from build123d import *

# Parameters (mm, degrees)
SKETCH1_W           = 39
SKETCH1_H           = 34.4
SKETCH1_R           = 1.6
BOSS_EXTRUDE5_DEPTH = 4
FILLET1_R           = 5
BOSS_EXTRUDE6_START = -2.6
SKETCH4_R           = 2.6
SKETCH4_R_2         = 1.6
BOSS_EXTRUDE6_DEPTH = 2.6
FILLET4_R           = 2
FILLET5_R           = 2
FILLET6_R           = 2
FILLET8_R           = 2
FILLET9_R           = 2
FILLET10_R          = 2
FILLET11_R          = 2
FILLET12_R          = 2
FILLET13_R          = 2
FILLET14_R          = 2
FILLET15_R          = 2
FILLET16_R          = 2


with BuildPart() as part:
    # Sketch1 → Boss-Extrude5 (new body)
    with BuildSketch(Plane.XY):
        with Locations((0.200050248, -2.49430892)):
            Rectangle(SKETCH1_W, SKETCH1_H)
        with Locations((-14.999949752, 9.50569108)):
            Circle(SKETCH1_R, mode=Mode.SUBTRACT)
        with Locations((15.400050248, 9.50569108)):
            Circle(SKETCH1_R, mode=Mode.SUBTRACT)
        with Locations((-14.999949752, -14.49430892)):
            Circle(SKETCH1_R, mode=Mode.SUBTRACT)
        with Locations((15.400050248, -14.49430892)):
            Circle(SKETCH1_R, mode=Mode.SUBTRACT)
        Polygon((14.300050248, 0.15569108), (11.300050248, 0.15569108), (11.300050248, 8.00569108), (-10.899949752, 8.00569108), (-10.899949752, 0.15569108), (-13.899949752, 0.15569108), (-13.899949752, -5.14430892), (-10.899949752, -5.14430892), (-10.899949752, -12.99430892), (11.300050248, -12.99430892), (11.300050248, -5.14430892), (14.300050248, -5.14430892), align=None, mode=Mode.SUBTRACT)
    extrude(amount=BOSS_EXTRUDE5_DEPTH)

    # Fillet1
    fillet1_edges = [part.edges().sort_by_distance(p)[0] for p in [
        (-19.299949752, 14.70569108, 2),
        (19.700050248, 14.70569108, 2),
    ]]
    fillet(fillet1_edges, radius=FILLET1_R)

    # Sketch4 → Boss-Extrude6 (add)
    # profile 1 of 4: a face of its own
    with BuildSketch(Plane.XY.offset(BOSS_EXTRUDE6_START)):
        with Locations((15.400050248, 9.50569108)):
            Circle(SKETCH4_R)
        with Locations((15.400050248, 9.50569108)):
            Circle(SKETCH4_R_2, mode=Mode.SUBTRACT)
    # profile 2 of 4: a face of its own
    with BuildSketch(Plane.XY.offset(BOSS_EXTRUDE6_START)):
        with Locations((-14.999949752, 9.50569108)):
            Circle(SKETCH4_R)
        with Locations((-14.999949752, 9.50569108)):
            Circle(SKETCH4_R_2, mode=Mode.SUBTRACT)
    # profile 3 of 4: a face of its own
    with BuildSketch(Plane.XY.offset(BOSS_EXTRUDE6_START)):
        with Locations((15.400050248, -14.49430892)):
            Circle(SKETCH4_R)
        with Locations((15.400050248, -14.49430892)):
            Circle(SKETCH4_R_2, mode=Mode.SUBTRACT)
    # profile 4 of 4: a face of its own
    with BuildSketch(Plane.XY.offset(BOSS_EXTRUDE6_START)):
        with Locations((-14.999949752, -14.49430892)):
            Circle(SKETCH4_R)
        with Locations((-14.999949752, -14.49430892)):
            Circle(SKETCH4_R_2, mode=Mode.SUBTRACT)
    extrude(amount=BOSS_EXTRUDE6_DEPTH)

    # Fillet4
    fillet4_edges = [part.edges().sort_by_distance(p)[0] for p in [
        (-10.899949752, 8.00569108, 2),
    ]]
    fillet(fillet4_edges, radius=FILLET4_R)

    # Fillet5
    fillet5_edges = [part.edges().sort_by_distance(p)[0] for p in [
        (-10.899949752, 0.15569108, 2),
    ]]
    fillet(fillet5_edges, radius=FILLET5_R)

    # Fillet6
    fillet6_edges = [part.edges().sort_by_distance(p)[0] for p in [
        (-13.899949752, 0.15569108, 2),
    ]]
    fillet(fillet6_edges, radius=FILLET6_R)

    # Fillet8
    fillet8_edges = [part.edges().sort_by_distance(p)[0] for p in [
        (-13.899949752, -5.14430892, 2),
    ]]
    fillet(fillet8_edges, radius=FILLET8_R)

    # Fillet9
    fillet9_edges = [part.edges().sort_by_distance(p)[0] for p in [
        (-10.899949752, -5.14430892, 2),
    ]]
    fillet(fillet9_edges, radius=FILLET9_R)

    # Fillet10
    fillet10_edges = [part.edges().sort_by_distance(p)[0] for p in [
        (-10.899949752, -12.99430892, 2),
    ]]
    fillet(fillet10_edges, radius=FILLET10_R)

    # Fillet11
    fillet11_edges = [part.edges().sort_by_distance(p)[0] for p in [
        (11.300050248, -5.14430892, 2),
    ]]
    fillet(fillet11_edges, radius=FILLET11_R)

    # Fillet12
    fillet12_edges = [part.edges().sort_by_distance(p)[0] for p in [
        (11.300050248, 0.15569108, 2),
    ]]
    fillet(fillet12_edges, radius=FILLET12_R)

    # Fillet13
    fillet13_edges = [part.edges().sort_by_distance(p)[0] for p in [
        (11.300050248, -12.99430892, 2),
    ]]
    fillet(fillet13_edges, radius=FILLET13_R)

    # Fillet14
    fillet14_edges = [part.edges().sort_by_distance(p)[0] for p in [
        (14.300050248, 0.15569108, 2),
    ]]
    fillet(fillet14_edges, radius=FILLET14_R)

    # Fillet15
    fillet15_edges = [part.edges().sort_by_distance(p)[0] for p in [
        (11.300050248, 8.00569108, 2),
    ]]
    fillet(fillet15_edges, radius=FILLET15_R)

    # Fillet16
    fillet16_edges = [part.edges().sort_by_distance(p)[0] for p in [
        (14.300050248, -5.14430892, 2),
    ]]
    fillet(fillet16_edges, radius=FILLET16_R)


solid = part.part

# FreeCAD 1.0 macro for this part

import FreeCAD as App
import Part
import Sketcher
from FreeCAD import Vector
Q = App.Units.Quantity


def edges_at(feature, points):
    """Names of the edges that pass closest to the given points."""
    edges = feature.Shape.Edges
    near = lambda p: min(range(len(edges)), key=lambda i: edges[i].distToShape(Part.Vertex(*p))[0])
    return sorted({f"Edge{near(p) + 1}" for p in points})


def add_polygon(sketch, points):
    """Adds a closed chain of lines whose ends are joined by coincident constraints."""
    first, n = sketch.GeometryCount, len(points)
    for a, b in zip(points, points[1:] + points[:1]):
        sketch.addGeometry(Part.LineSegment(App.Vector(*a, 0), App.Vector(*b, 0)), False)
    for i in range(n):
        sketch.addConstraint(Sketcher.Constraint("Coincident", first + i, 2, first + (i + 1) % n, 1))

doc = App.newDocument("Part")
params = doc.addObject("Spreadsheet::Sheet", "Params")
for row, (alias, value) in enumerate([
    ("sketch1_diameter", "3.2 mm"),
    ("sketch1_width", "39 mm"),
    ("sketch1_width2", "3 mm"),
    ("sketch1_width3", "22.2 mm"),
    ("sketch1_height", "34.4 mm"),
    ("pad1_length", "4 mm"),
    ("fillet_radius", "5 mm"),
    ("sketch2_diameter", "5.2 mm"),
    ("sketch2_diameter2", "3.2 mm"),
    ("pad2_length", "2.6 mm"),
    ("fillet2_radius", "2 mm"),
    ("fillet3_radius", "2 mm"),
    ("fillet4_radius", "2 mm"),
    ("fillet5_radius", "2 mm"),
    ("fillet6_radius", "2 mm"),
    ("fillet7_radius", "2 mm"),
    ("fillet8_radius", "2 mm"),
    ("fillet9_radius", "2 mm"),
    ("fillet10_radius", "2 mm"),
    ("fillet11_radius", "2 mm"),
    ("fillet12_radius", "2 mm"),
    ("fillet13_radius", "2 mm"),
], start=1):
    params.set(f"A{row}", alias)
    params.set(f"B{row}", "=" + value)
    params.setAlias(f"B{row}", alias)

body = doc.addObject("PartDesign::Body", "Body")

# Sketch on XY plane
sketch1 = body.newObject("Sketcher::SketchObject", "Sketch")
sketch1.AttachmentSupport = (doc.getObject("XY_Plane"), [""])
sketch1.MapMode = "FlatFace"
add_polygon(sketch1, [(-19.3, 14.7), (-19.3, -19.7), (19.7, -19.7), (19.7, 14.7)])  # lines 0-3
sketch1.addGeometry(Part.Circle(Vector(-15, -14.5, 0), Vector(0, 0, 1), 1.6), False)  # 4
sketch1.addGeometry(Part.Circle(Vector(15.4, -14.5, 0), Vector(0, 0, 1), 1.6), False)  # 5
sketch1.addGeometry(Part.Circle(Vector(-15, 9.5, 0), Vector(0, 0, 1), 1.6), False)  # 6
add_polygon(sketch1, [(11.3, 0.2), (14.3, 0.2), (14.3, -5.1), (11.3, -5.1), (11.3, -13), (-10.9, -13), (-10.9, -5.1), (-13.9, -5.1), (-13.9, 0.2), (-10.9, 0.2), (-10.9, 8), (11.3, 8)])  # lines 7-18
sketch1.addGeometry(Part.Circle(Vector(15.4, 9.5, 0), Vector(0, 0, 1), 1.6), False)  # 19
sketch1.addConstraint([
    Sketcher.Constraint("Vertical", 0),
    Sketcher.Constraint("Horizontal", 1),
    Sketcher.Constraint("Vertical", 2),
    Sketcher.Constraint("Horizontal", 3),
    Sketcher.Constraint("Horizontal", 7),
    Sketcher.Constraint("Vertical", 8),
    Sketcher.Constraint("Horizontal", 9),
    Sketcher.Constraint("Vertical", 10),
    Sketcher.Constraint("Horizontal", 11),
    Sketcher.Constraint("Vertical", 12),
    Sketcher.Constraint("Horizontal", 13),
    Sketcher.Constraint("Vertical", 14),
    Sketcher.Constraint("Horizontal", 15),
    Sketcher.Constraint("Vertical", 16),
    Sketcher.Constraint("Horizontal", 17),
    Sketcher.Constraint("Vertical", 18),
    Sketcher.Constraint("Equal", 4, 5),
    Sketcher.Constraint("Equal", 5, 6),
    Sketcher.Constraint("Equal", 6, 19),
    Sketcher.Constraint("Horizontal", 4, 3, 5, 3),
    Sketcher.Constraint("Horizontal", 6, 3, 19, 3),
    Sketcher.Constraint("Horizontal", 9, 2, 12, 2),
    Sketcher.Constraint("Horizontal", 7, 2, 14, 2),
    Sketcher.Constraint("Vertical", 4, 3, 6, 3),
    Sketcher.Constraint("Vertical", 5, 3, 19, 3),
    Sketcher.Constraint("Vertical", 12, 2, 15, 2),
    Sketcher.Constraint("Vertical", 10, 2, 17, 2),
    Sketcher.Constraint("Equal", 9, 13),
    Sketcher.Constraint("Equal", 12, 16),
    Sketcher.Constraint("Diameter", 4, Q("3.2 mm")),
    Sketcher.Constraint("DistanceX", 1, 1, 1, 2, Q("39 mm")),
    Sketcher.Constraint("DistanceX", 7, 1, 7, 2, Q("3 mm")),
    Sketcher.Constraint("DistanceX", 11, 2, 11, 1, Q("22.2 mm")),
    Sketcher.Constraint("DistanceY", 0, 2, 0, 1, Q("34.4 mm")),
    Sketcher.Constraint("DistanceY", 8, 2, 8, 1, Q("5.3 mm")),
    Sketcher.Constraint("DistanceY", 4, 3, 6, 3, Q("24 mm")),
    Sketcher.Constraint("DistanceY", 10, 2, 10, 1, Q("7.85 mm")),
    Sketcher.Constraint("DistanceX", 4, 3, 5, 3, Q("30.4 mm")),
    Sketcher.Constraint("DistanceX", 0, 2, 4, 3, Q("4.3 mm")),
    Sketcher.Constraint("DistanceY", 0, 2, 4, 3, Q("5.2 mm")),
    Sketcher.Constraint("DistanceX", 7, 2, 19, 3, Q("1.1 mm")),
    Sketcher.Constraint("DistanceY", 5, 3, 10, 2, Q("1.5 mm")),
    Sketcher.Constraint("DistanceX", 4, 3, -1, 1, Q("14.99995 mm")),
    Sketcher.Constraint("DistanceY", 4, 3, -1, 1, Q("14.494309 mm")),
])
sketch1.setExpression("Constraints[45]", "Params.sketch1_diameter")
sketch1.setExpression("Constraints[46]", "Params.sketch1_width")
sketch1.setExpression("Constraints[47]", "Params.sketch1_width2")
sketch1.setExpression("Constraints[48]", "Params.sketch1_width3")
sketch1.setExpression("Constraints[49]", "Params.sketch1_height")
pad1 = body.newObject("PartDesign::Pad", "Pad")
pad1.Profile = sketch1
pad1.setExpression("Length", "Params.pad1_length")
doc.recompute()

fillet = body.newObject("PartDesign::Fillet", "Fillet")
fillet.Base = (pad1, edges_at(pad1, [(-19.3, 14.706, 2), (19.7, 14.706, 2)]))
fillet.setExpression("Radius", "Params.fillet_radius")

# Sketch on XY plane
sketch2 = body.newObject("Sketcher::SketchObject", "Sketch001")
sketch2.AttachmentSupport = (doc.getObject("XY_Plane"), [""])
sketch2.MapMode = "FlatFace"
sketch2.AttachmentOffset = App.Placement(Vector(0, 0, -2.6), App.Rotation())
sketch2.addGeometry([
    Part.Circle(Vector(15.4, 9.5, 0), Vector(0, 0, 1), 2.6),  # 0
    Part.Circle(Vector(15.4, 9.5, 0), Vector(0, 0, 1), 1.6),  # 1
    Part.Circle(Vector(-15, 9.5, 0), Vector(0, 0, 1), 2.6),  # 2
    Part.Circle(Vector(-15, 9.5, 0), Vector(0, 0, 1), 1.6),  # 3
    Part.Circle(Vector(15.4, -14.5, 0), Vector(0, 0, 1), 2.6),  # 4
    Part.Circle(Vector(15.4, -14.5, 0), Vector(0, 0, 1), 1.6),  # 5
    Part.Circle(Vector(-15, -14.5, 0), Vector(0, 0, 1), 2.6),  # 6
    Part.Circle(Vector(-15, -14.5, 0), Vector(0, 0, 1), 1.6),  # 7
], False)
sketch2.addConstraint([
    Sketcher.Constraint("Coincident", 1, 3, 0, 3),
    Sketcher.Constraint("Coincident", 3, 3, 2, 3),
    Sketcher.Constraint("Coincident", 5, 3, 4, 3),
    Sketcher.Constraint("Coincident", 7, 3, 6, 3),
    Sketcher.Constraint("Equal", 0, 2),
    Sketcher.Constraint("Equal", 1, 3),
    Sketcher.Constraint("Equal", 2, 4),
    Sketcher.Constraint("Equal", 3, 5),
    Sketcher.Constraint("Equal", 4, 6),
    Sketcher.Constraint("Equal", 5, 7),
    Sketcher.Constraint("Horizontal", 1, 3, 2, 3),
    Sketcher.Constraint("Horizontal", 5, 3, 6, 3),
    Sketcher.Constraint("Vertical", 1, 3, 4, 3),
    Sketcher.Constraint("Vertical", 3, 3, 6, 3),
    Sketcher.Constraint("Diameter", 0, Q("5.2 mm")),
    Sketcher.Constraint("Diameter", 1, Q("3.2 mm")),
    Sketcher.Constraint("DistanceY", 4, 3, 0, 3, Q("24 mm")),
    Sketcher.Constraint("DistanceX", 2, 3, 0, 3, Q("30.4 mm")),
    Sketcher.Constraint("DistanceX", -1, 1, 0, 3, Q("15.40005 mm")),
    Sketcher.Constraint("DistanceY", -1, 1, 0, 3, Q("9.505691 mm")),
])
sketch2.setExpression("Constraints[14]", "Params.sketch2_diameter")
sketch2.setExpression("Constraints[15]", "Params.sketch2_diameter2")
pad2 = body.newObject("PartDesign::Pad", "Pad001")
pad2.Profile = sketch2
pad2.setExpression("Length", "Params.pad2_length")
doc.recompute()

fillet2 = body.newObject("PartDesign::Fillet", "Fillet001")
fillet2.Base = (pad2, edges_at(pad2, [(-10.9, 8.006, 2)]))
fillet2.setExpression("Radius", "Params.fillet2_radius")
doc.recompute()

fillet3 = body.newObject("PartDesign::Fillet", "Fillet002")
fillet3.Base = (fillet2, edges_at(fillet2, [(-10.9, 0.156, 2)]))
fillet3.setExpression("Radius", "Params.fillet3_radius")
doc.recompute()

fillet4 = body.newObject("PartDesign::Fillet", "Fillet003")
fillet4.Base = (fillet3, edges_at(fillet3, [(-13.9, 0.156, 2)]))
fillet4.setExpression("Radius", "Params.fillet4_radius")
doc.recompute()

fillet5 = body.newObject("PartDesign::Fillet", "Fillet004")
fillet5.Base = (fillet4, edges_at(fillet4, [(-13.9, -5.144, 2)]))
fillet5.setExpression("Radius", "Params.fillet5_radius")
doc.recompute()

fillet6 = body.newObject("PartDesign::Fillet", "Fillet005")
fillet6.Base = (fillet5, edges_at(fillet5, [(-10.9, -5.144, 2)]))
fillet6.setExpression("Radius", "Params.fillet6_radius")
doc.recompute()

fillet7 = body.newObject("PartDesign::Fillet", "Fillet006")
fillet7.Base = (fillet6, edges_at(fillet6, [(-10.9, -12.994, 2)]))
fillet7.setExpression("Radius", "Params.fillet7_radius")
doc.recompute()

fillet8 = body.newObject("PartDesign::Fillet", "Fillet007")
fillet8.Base = (fillet7, edges_at(fillet7, [(11.3, -5.144, 2)]))
fillet8.setExpression("Radius", "Params.fillet8_radius")
doc.recompute()

fillet9 = body.newObject("PartDesign::Fillet", "Fillet008")
fillet9.Base = (fillet8, edges_at(fillet8, [(11.3, 0.156, 2)]))
fillet9.setExpression("Radius", "Params.fillet9_radius")
doc.recompute()

fillet10 = body.newObject("PartDesign::Fillet", "Fillet009")
fillet10.Base = (fillet9, edges_at(fillet9, [(11.3, -12.994, 2)]))
fillet10.setExpression("Radius", "Params.fillet10_radius")
doc.recompute()

fillet11 = body.newObject("PartDesign::Fillet", "Fillet010")
fillet11.Base = (fillet10, edges_at(fillet10, [(14.3, 0.156, 2)]))
fillet11.setExpression("Radius", "Params.fillet11_radius")
doc.recompute()

fillet12 = body.newObject("PartDesign::Fillet", "Fillet011")
fillet12.Base = (fillet11, edges_at(fillet11, [(11.3, 8.006, 2)]))
fillet12.setExpression("Radius", "Params.fillet12_radius")
doc.recompute()

fillet13 = body.newObject("PartDesign::Fillet", "Fillet012")
fillet13.Base = (fillet12, edges_at(fillet12, [(14.3, -5.144, 2)]))
fillet13.setExpression("Radius", "Params.fillet13_radius")

doc.recompute()
